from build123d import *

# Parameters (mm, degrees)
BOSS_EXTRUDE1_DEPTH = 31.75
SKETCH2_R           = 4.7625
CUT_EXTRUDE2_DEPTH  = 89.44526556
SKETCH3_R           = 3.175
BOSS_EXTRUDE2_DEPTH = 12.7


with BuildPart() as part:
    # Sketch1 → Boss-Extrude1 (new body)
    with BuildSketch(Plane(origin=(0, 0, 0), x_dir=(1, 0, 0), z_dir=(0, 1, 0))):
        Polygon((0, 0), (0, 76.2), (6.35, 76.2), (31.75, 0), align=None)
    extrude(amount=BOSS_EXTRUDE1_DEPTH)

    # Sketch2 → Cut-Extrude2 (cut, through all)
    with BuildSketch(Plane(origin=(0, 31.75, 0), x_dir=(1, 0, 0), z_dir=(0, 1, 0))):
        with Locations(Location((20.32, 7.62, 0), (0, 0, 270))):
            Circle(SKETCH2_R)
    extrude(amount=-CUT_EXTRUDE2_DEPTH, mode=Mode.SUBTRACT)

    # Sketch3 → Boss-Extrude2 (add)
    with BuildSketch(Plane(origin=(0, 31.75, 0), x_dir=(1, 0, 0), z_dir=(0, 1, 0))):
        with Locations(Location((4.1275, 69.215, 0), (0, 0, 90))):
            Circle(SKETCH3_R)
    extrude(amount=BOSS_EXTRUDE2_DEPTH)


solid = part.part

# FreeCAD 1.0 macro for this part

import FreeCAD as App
import Part
import Sketcher

V = App.Vector
Q = App.Units.Quantity

doc = App.newDocument("Part")
body = doc.addObject("PartDesign::Body", "Body")

# Sketch on XZ plane
sketch1 = body.newObject("Sketcher::SketchObject", "Sketch")
sketch1.AttachmentSupport = (doc.getObject("XZ_Plane"), [""])
sketch1.MapMode = "FlatFace"
sketch1.addGeometry([
    Part.LineSegment(V(0, -76, 0), V(0, 0, 0)),
    Part.LineSegment(V(0, 0, 0), V(32, 0, 0)),
    Part.LineSegment(V(32, 0, 0), V(6, -76, 0)),
    Part.LineSegment(V(6, -76, 0), V(0, -76, 0)),
], False)
sketch1.addConstraint([
    Sketcher.Constraint("Coincident", 0, 2, 1, 1),
    Sketcher.Constraint("Coincident", 1, 2, 2, 1),
    Sketcher.Constraint("Coincident", 2, 2, 3, 1),
    Sketcher.Constraint("Coincident", 3, 2, 0, 1),
    Sketcher.Constraint("Vertical", 0),
    Sketcher.Constraint("Horizontal", 1),
    Sketcher.Constraint("Horizontal", 3),
    Sketcher.Constraint("Coincident", 0, 2, -1, 1),
    Sketcher.Constraint("DistanceY", 0, 1, 0, 2, Q("3 in")),
    Sketcher.Constraint("DistanceX", 2, 2, 1, 2, Q("1 in")),
    Sketcher.Constraint("DistanceX", 1, 1, 1, 2, Q("1.25 in")),
])
pad1 = body.newObject("PartDesign::Pad", "Pad")
pad1.Profile = sketch1
pad1.Length = Q("1.25 in")
pad1.Reversed = True

# Sketch on XZ plane
sketch2 = body.newObject("Sketcher::SketchObject", "Sketch001")
sketch2.AttachmentSupport = (doc.getObject("XZ_Plane"), [""])
sketch2.MapMode = "FlatFace"
sketch2.AttachmentOffset = App.Placement(V(0, 0, -1.25 * 25.4), App.Rotation())
sketch2.addGeometry(Part.Circle(V(20.3, -7.6, 0), V(0, 0, 1), 4.8), False)
sketch2.addConstraint([
    Sketcher.Constraint("Diameter", 0, Q("0.375 in")),
    Sketcher.Constraint("DistanceX", -1, 1, 0, 3, Q("0.8 in")),
    Sketcher.Constraint("DistanceY", 0, 3, -1, 1, Q("0.3 in")),
])
pocket1 = body.newObject("PartDesign::Pocket", "Pocket")
pocket1.Profile = sketch2
pocket1.Type = "ThroughAll"
pocket1.Reversed = True

# Sketch on XZ plane
sketch3 = body.newObject("Sketcher::SketchObject", "Sketch002")
sketch3.AttachmentSupport = (doc.getObject("XZ_Plane"), [""])
sketch3.MapMode = "FlatFace"
sketch3.AttachmentOffset = App.Placement(V(0, 0, -1.25 * 25.4), App.Rotation())
sketch3.addGeometry(Part.Circle(V(4.1, -69.2, 0), V(0, 0, 1), 3.2), False)
sketch3.addConstraint([
    Sketcher.Constraint("Diameter", 0, Q("0.25 in")),
    Sketcher.Constraint("DistanceY", 0, 3, -1, 1, Q("2.725 in")),
    Sketcher.Constraint("DistanceX", -1, 1, 0, 3, Q("0.1625 in")),
])
pad2 = body.newObject("PartDesign::Pad", "Pad001")
pad2.Profile = sketch3
pad2.Length = Q("0.5 in")
pad2.Reversed = True

doc.recompute()
